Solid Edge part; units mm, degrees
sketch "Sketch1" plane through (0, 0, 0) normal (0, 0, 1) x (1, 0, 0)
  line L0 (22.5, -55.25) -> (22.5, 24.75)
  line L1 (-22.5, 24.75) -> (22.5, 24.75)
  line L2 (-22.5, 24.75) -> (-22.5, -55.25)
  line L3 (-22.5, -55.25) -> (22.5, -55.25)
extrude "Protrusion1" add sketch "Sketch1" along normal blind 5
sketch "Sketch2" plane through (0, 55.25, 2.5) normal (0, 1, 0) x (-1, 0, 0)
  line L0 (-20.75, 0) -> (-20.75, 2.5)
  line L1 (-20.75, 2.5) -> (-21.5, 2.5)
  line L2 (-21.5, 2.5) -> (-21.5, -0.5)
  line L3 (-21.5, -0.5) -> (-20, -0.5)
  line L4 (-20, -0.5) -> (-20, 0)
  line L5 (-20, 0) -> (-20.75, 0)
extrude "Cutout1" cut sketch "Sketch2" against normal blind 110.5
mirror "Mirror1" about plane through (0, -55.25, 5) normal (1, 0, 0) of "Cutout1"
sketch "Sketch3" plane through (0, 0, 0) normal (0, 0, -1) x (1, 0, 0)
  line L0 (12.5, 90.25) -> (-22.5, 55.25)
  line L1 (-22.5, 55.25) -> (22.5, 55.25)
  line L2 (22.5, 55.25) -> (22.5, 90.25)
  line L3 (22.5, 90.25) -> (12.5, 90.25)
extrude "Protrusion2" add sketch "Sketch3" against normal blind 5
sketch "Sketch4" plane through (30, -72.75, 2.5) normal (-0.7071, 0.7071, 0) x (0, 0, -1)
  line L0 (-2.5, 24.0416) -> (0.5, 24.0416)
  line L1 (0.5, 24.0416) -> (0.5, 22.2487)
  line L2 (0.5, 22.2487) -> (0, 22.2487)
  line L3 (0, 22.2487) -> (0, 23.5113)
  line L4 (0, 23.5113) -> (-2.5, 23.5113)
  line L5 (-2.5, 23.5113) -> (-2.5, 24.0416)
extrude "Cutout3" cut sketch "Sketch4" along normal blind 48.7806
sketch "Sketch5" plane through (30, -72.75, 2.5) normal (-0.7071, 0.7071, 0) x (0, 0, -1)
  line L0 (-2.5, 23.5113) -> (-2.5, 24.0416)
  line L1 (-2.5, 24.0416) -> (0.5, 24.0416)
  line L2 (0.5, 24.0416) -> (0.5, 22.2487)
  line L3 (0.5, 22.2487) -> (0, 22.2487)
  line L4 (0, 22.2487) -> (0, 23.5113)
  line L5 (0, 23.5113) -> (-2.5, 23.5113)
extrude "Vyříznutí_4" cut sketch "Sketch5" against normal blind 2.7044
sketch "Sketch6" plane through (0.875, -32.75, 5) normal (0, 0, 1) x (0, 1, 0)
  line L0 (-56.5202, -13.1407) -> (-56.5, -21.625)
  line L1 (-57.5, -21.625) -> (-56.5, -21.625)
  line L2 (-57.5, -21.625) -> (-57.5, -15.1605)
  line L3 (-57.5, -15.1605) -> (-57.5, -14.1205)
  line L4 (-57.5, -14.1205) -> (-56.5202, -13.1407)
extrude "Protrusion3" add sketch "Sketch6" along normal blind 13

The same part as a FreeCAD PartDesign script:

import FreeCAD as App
import Part
import Sketcher
Q = App.Units.Quantity


def add_polygon(sketch, points):
    """Adds a closed chain of lines whose ends are joined by coincident constraints."""
    first, n = sketch.GeometryCount, len(points)
    for a, b in zip(points, points[1:] + points[:1]):
        sketch.addGeometry(Part.LineSegment(App.Vector(*a, 0), App.Vector(*b, 0)), False)
    for i in range(n):
        sketch.addConstraint(Sketcher.Constraint("Coincident", first + i, 2, first + (i + 1) % n, 1))

doc = App.newDocument("Part")
body = doc.addObject("PartDesign::Body", "Body")

# Sketch on XY plane
sketch1 = doc.addObject("Sketcher::SketchObject", "Sketch")
body.addObject(sketch1)
sketch1.AttachmentSupport = (doc.XY_Plane, [""])
sketch1.MapMode = "FlatFace"
add_polygon(sketch1, [(-22.5, -55.25), (22.5, -55.25), (22.5, 24.75), (-22.5, 24.75)])  # lines 0-3
sketch1.addConstraint([
    Sketcher.Constraint("Horizontal", 0),
    Sketcher.Constraint("Vertical", 1),
    Sketcher.Constraint("Horizontal", 2),
    Sketcher.Constraint("Vertical", 3),
    Sketcher.Constraint("DistanceX", 0, 1, 0, 2, Q("45 mm")),
    Sketcher.Constraint("DistanceY", 1, 1, 1, 2, Q("80 mm")),
    Sketcher.Constraint("DistanceX", -1, 1, 0, 2, Q("22.5 mm")),
    Sketcher.Constraint("DistanceY", 0, 2, -1, 1, Q("55.25 mm")),
])
pad1 = doc.addObject("PartDesign::Pad", "Pad")
body.addObject(pad1)
pad1.Profile = sketch1
pad1.Length = 5

# Sketch on XZ plane
sketch2 = doc.addObject("Sketcher::SketchObject", "Sketch001")
body.addObject(sketch2)
sketch2.AttachmentSupport = (doc.XZ_Plane, [""])
sketch2.MapMode = "FlatFace"
sketch2.AttachmentOffset = App.Placement(App.Vector(0, 0, -55.25), App.Rotation())
add_polygon(sketch2, [(20, 2.5), (20.75, 2.5), (20.75, 5), (21.5, 5), (21.5, 2), (20, 2)])  # lines 0-5
sketch2.addConstraint([
    Sketcher.Constraint("Horizontal", 0),
    Sketcher.Constraint("Vertical", 1),
    Sketcher.Constraint("Horizontal", 2),
    Sketcher.Constraint("Vertical", 3),
    Sketcher.Constraint("Horizontal", 4),
    Sketcher.Constraint("Vertical", 5),
    Sketcher.Constraint("Equal", 0, 2),
    Sketcher.Constraint("DistanceY", 3, 2, 3, 1, Q("3 mm")),
    Sketcher.Constraint("DistanceX", 4, 2, 4, 1, Q("1.5 mm")),
    Sketcher.Constraint("DistanceY", 1, 1, 1, 2, Q("2.5 mm")),
    Sketcher.Constraint("DistanceY", -1, 1, 1, 2, Q("5 mm")),
    Sketcher.Constraint("DistanceX", -1, 1, 4, 2, Q("20 mm")),
])
pocket1 = doc.addObject("PartDesign::Pocket", "Pocket")
body.addObject(pocket1)
pocket1.Profile = sketch2
pocket1.Length = 110.5
pocket1.Reversed = True
doc.recompute()

mirrored = doc.addObject("PartDesign::Mirrored", "Mirrored")
body.addObject(mirrored)
mirrored.Originals = [pocket1]
mirrored.MirrorPlane = (doc.YZ_Plane, [""])
body.Tip = mirrored

# Sketch on XY plane
sketch3 = doc.addObject("Sketcher::SketchObject", "Sketch002")
body.addObject(sketch3)
sketch3.AttachmentSupport = (doc.XY_Plane, [""])
sketch3.MapMode = "FlatFace"
add_polygon(sketch3, [(22.5, -90.25), (12.5, -90.25), (-22.5, -55.25), (22.5, -55.25)])  # lines 0-3
sketch3.addConstraint([
    Sketcher.Constraint("Horizontal", 0),
    Sketcher.Constraint("Horizontal", 2),
    Sketcher.Constraint("Vertical", 3),
    Sketcher.Constraint("DistanceX", 0, 2, 0, 1, Q("10 mm")),
    Sketcher.Constraint("DistanceX", 2, 1, 2, 2, Q("45 mm")),
    Sketcher.Constraint("DistanceY", 3, 2, 3, 1, Q("35 mm")),
    Sketcher.Constraint("DistanceX", -1, 1, 0, 2, Q("12.5 mm")),
    Sketcher.Constraint("DistanceY", 0, 2, -1, 1, Q("90.25 mm")),
])
pad2 = doc.addObject("PartDesign::Pad", "Pad001")
body.addObject(pad2)
pad2.Profile = sketch3
pad2.Length = 5

# Sketch on an angled plane
sketch4 = doc.addObject("Sketcher::SketchObject", "Sketch003")
body.addObject(sketch4)
sketch4.Placement = App.Placement(App.Vector(30, -72.75, 2.5), App.Rotation(App.Vector(0, 0, -1), App.Vector(-0.707106781, -0.707106781, 0), App.Vector(-0.707106781, 0.707106781, 0), "ZXY"))
add_polygon(sketch4, [(0.5, 24.0416), (-2.5, 24.0416), (-2.5, 23.5113), (0, 23.5113), (0, 22.2487), (0.5, 22.2487)])  # lines 0-5
sketch4.addConstraint([
    Sketcher.Constraint("Horizontal", 0),
    Sketcher.Constraint("Vertical", 1),
    Sketcher.Constraint("Horizontal", 2),
    Sketcher.Constraint("Vertical", 3),
    Sketcher.Constraint("Horizontal", 4),
    Sketcher.Constraint("Vertical", 5),
    Sketcher.Constraint("PointOnObject", 2, 2, -2),
    Sketcher.Constraint("DistanceX", 0, 2, 0, 1, Q("3 mm")),
    Sketcher.Constraint("DistanceX", 2, 1, 2, 2, Q("2.5 mm")),
    Sketcher.Constraint("DistanceY", 5, 1, 5, 2, Q("1.793 mm")),
    Sketcher.Constraint("DistanceY", 1, 2, 1, 1, Q("0.5303 mm")),
    Sketcher.Constraint("DistanceY", -1, 1, 0, 2, Q("24.0416 mm")),
])
pocket2 = doc.addObject("PartDesign::Pocket", "Pocket001")
body.addObject(pocket2)
pocket2.Profile = sketch4
pocket2.Length = 48.7806
pocket2.Reversed = True

# Sketch on an angled plane
sketch5 = doc.addObject("Sketcher::SketchObject", "Sketch004")
body.addObject(sketch5)
sketch5.Placement = App.Placement(App.Vector(30, -72.75, 2.5), App.Rotation(App.Vector(0, 0, -1), App.Vector(-0.707106781, -0.707106781, 0), App.Vector(-0.707106781, 0.707106781, 0), "ZXY"))
add_polygon(sketch5, [(-2.5, 24.0416), (-2.5, 23.5113), (0, 23.5113), (0, 22.2487), (0.5, 22.2487), (0.5, 24.0416)])  # lines 0-5
sketch5.addConstraint([
    Sketcher.Constraint("Vertical", 0),
    Sketcher.Constraint("Horizontal", 1),
    Sketcher.Constraint("Vertical", 2),
    Sketcher.Constraint("Horizontal", 3),
    Sketcher.Constraint("Vertical", 4),
    Sketcher.Constraint("Horizontal", 5),
    Sketcher.Constraint("PointOnObject", 1, 2, -2),
    Sketcher.Constraint("DistanceX", 5, 2, 5, 1, Q("3 mm")),
    Sketcher.Constraint("DistanceX", 1, 1, 1, 2, Q("2.5 mm")),
    Sketcher.Constraint("DistanceY", 4, 1, 4, 2, Q("1.793 mm")),
    Sketcher.Constraint("DistanceY", 0, 2, 0, 1, Q("0.5303 mm")),
    Sketcher.Constraint("DistanceY", -1, 1, 0, 2, Q("23.5113 mm")),
])
pocket3 = doc.addObject("PartDesign::Pocket", "Pocket002")
body.addObject(pocket3)
pocket3.Profile = sketch5
pocket3.Length = 2.7044

# Sketch on XY plane
sketch6 = doc.addObject("Sketcher::SketchObject", "Sketch005")
body.addObject(sketch6)
sketch6.AttachmentSupport = (doc.XY_Plane, [""])
sketch6.MapMode = "FlatFace"
sketch6.AttachmentOffset = App.Placement(App.Vector(0, 0, 5), App.Rotation())
add_polygon(sketch6, [(22.5, -89.25), (14.0157, -89.2702), (14.9955, -90.25), (22.5, -90.25)])  # lines 0-3
sketch6.addConstraint([
    Sketcher.Constraint("Horizontal", 2),
    Sketcher.Constraint("Vertical", 3),
    Sketcher.Constraint("DistanceY", 3, 1, 3, 2, Q("1 mm")),
    Sketcher.Constraint("Angle", 1, Q("-45 deg")),
    Sketcher.Constraint("DistanceX", -1, 1, 2, 2, Q("22.5 mm")),
    Sketcher.Constraint("DistanceY", 1, 2, -1, 1, Q("90.25 mm")),
    Sketcher.Constraint("DistanceX", 2, 1, 2, 2, Q("7.5045 mm")),
    Sketcher.Constraint("Distance", 0, Q("8.4843 mm")),
])
pad3 = doc.addObject("PartDesign::Pad", "Pad002")
body.addObject(pad3)
pad3.Profile = sketch6
pad3.Length = 13

doc.recompute()
